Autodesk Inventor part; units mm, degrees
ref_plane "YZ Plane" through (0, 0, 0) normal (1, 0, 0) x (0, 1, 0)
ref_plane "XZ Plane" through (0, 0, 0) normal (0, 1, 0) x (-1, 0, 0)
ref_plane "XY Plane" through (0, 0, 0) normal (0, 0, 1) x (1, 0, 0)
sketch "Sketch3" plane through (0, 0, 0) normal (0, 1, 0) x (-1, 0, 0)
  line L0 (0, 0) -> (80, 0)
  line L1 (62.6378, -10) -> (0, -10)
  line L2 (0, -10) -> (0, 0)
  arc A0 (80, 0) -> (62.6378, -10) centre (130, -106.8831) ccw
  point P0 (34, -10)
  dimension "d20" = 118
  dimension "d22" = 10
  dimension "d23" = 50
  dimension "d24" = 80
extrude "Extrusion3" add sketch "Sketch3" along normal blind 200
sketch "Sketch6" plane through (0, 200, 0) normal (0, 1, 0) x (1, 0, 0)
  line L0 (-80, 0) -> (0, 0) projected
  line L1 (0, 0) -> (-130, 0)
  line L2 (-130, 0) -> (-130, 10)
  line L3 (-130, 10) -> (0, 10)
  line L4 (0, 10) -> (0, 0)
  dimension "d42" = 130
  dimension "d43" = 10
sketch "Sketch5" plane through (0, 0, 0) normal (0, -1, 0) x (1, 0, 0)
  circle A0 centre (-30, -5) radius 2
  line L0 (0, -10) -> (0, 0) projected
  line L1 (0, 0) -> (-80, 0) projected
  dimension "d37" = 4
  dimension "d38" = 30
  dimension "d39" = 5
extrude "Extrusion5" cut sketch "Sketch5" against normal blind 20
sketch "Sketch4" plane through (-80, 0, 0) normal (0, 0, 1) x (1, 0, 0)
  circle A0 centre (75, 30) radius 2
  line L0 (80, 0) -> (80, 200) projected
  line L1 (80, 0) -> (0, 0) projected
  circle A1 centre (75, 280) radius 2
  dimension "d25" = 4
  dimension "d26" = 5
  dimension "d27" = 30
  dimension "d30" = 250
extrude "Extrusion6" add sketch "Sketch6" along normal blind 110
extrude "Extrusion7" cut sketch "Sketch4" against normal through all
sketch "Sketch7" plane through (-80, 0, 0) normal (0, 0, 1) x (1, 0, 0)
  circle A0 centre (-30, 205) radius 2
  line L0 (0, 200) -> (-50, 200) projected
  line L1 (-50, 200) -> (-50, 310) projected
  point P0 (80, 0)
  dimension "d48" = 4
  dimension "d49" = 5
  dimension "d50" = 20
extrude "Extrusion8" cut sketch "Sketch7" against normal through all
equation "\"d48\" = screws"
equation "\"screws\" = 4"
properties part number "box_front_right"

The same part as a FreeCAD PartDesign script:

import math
import FreeCAD as App
import Part
import Sketcher
from FreeCAD import Vector


def add_polygon(sketch, points):
    """Adds a closed chain of lines whose ends are joined by coincident constraints."""
    first, n = sketch.GeometryCount, len(points)
    for a, b in zip(points, points[1:] + points[:1]):
        sketch.addGeometry(Part.LineSegment(App.Vector(*a, 0), App.Vector(*b, 0)), False)
    for i in range(n):
        sketch.addConstraint(Sketcher.Constraint("Coincident", first + i, 2, first + (i + 1) % n, 1))

doc = App.newDocument("Part")
params = doc.addObject("Spreadsheet::Sheet", "Params")
for row, (alias, value) in enumerate([
    ("sketch1_width", "80 mm"),
    ("sketch1_height", "10 mm"),
    ("pad1_length", "200 mm"),
    ("sketch2_diameter", "4 mm"),
    ("pocket1_length", "20 mm"),
    ("sketch3_width", "130 mm"),
    ("sketch3_height", "10 mm"),
    ("pad2_length", "110 mm"),
    ("sketch4_diameter", "4 mm"),
    ("sketch5_diameter", "4 mm"),
], start=1):
    params.set(f"A{row}", alias)
    params.set(f"B{row}", "=" + value)
    params.setAlias(f"B{row}", alias)

body = doc.addObject("PartDesign::Body", "Body")

# Sketch on XZ plane
sketch1 = doc.addObject("Sketcher::SketchObject", "Sketch")
body.addObject(sketch1)
sketch1.AttachmentSupport = (doc.XZ_Plane, [""])
sketch1.MapMode = "FlatFace"
sketch1.addGeometry([
    Part.LineSegment(Vector(-80, 0, 0), Vector(0, 0, 0)),
    Part.LineSegment(Vector(0, 0, 0), Vector(0, -10, 0)),
    Part.LineSegment(Vector(0, -10, 0), Vector(-63, -10, 0)),
    Part.ArcOfCircle(Part.Circle(Vector(-130, -107, 0), Vector(0, 0, 1), 118), math.radians(55.19), math.radians(64.93)),
], False)
sketch1.addConstraint([
    Sketcher.Constraint("Coincident", 0, 2, 1, 1),
    Sketcher.Constraint("Coincident", 1, 2, 2, 1),
    Sketcher.Constraint("Coincident", 2, 2, 3, 1),
    Sketcher.Constraint("Coincident", 3, 2, 0, 1),
    Sketcher.Constraint("Horizontal", 0),
    Sketcher.Constraint("Vertical", 1),
    Sketcher.Constraint("Horizontal", 2),
    Sketcher.Constraint("Coincident", 0, 2, -1, 1),
    Sketcher.Constraint("DistanceX", 0, 1, 0, 2, 80.0),
    Sketcher.Constraint("DistanceY", 1, 2, 1, 1, 10.0),
    Sketcher.Constraint("Radius", 3, 118.0023),
    Sketcher.Constraint("DistanceX", 2, 2, 2, 1, 62.6378),
])
sketch1.setExpression("Constraints[8]", "Params.sketch1_width")
sketch1.setExpression("Constraints[9]", "Params.sketch1_height")
pad1 = doc.addObject("PartDesign::Pad", "Pad")
body.addObject(pad1)
pad1.Profile = sketch1
pad1.setExpression("Length", "Params.pad1_length")
pad1.Reversed = True

# Sketch on XZ plane
sketch2 = doc.addObject("Sketcher::SketchObject", "Sketch001")
body.addObject(sketch2)
sketch2.AttachmentSupport = (doc.XZ_Plane, [""])
sketch2.MapMode = "FlatFace"
sketch2.addGeometry(Part.Circle(Vector(-30, -5, 0), Vector(0, 0, 1), 2), False)
sketch2.addConstraint([
    Sketcher.Constraint("Diameter", 0, 4.0),
    Sketcher.Constraint("DistanceX", 0, 3, -1, 1, 30.0),
    Sketcher.Constraint("DistanceY", 0, 3, -1, 1, 5.0),
])
sketch2.setExpression("Constraints[0]", "Params.sketch2_diameter")
pocket1 = doc.addObject("PartDesign::Pocket", "Pocket")
body.addObject(pocket1)
pocket1.Profile = sketch2
pocket1.setExpression("Length", "Params.pocket1_length")

# Sketch on XZ plane
sketch3 = doc.addObject("Sketcher::SketchObject", "Sketch002")
body.addObject(sketch3)
sketch3.AttachmentSupport = (doc.XZ_Plane, [""])
sketch3.MapMode = "FlatFace"
sketch3.AttachmentOffset = App.Placement(Vector(0, 0, -200), App.Rotation())
add_polygon(sketch3, [(-130, 0), (0, 0), (0, -10), (-130, -10)])  # lines 0-3
sketch3.addConstraint([
    Sketcher.Constraint("Horizontal", 0),
    Sketcher.Constraint("Vertical", 1),
    Sketcher.Constraint("Horizontal", 2),
    Sketcher.Constraint("Vertical", 3),
    Sketcher.Constraint("Coincident", 0, 2, -1, 1),
    Sketcher.Constraint("DistanceX", 0, 1, 0, 2, 130.0),
    Sketcher.Constraint("DistanceY", 1, 2, 1, 1, 10.0),
])
sketch3.setExpression("Constraints[9]", "Params.sketch3_width")
sketch3.setExpression("Constraints[10]", "Params.sketch3_height")
pad2 = doc.addObject("PartDesign::Pad", "Pad001")
body.addObject(pad2)
pad2.Profile = sketch3
pad2.setExpression("Length", "Params.pad2_length")
pad2.Reversed = True

# Sketch on XY plane
sketch4 = doc.addObject("Sketcher::SketchObject", "Sketch003")
body.addObject(sketch4)
sketch4.AttachmentSupport = (doc.XY_Plane, [""])
sketch4.MapMode = "FlatFace"
sketch4.addGeometry([
    Part.Circle(Vector(-5, 30, 0), Vector(0, 0, 1), 2),
    Part.Circle(Vector(-5, 280, 0), Vector(0, 0, 1), 2),
], False)
sketch4.addConstraint([
    Sketcher.Constraint("Equal", 0, 1),
    Sketcher.Constraint("Vertical", 0, 3, 1, 3),
    Sketcher.Constraint("Diameter", 0, 4.0),
    Sketcher.Constraint("DistanceX", 0, 3, -1, 1, 5.0),
    Sketcher.Constraint("DistanceY", -1, 1, 0, 3, 30.0),
    Sketcher.Constraint("DistanceY", 0, 3, 1, 3, 250.0),
])
sketch4.setExpression("Constraints[2]", "Params.sketch4_diameter")
pocket2 = doc.addObject("PartDesign::Pocket", "Pocket001")
body.addObject(pocket2)
pocket2.Profile = sketch4
pocket2.Type = "ThroughAll"

# Sketch on XY plane
sketch5 = doc.addObject("Sketcher::SketchObject", "Sketch004")
body.addObject(sketch5)
sketch5.AttachmentSupport = (doc.XY_Plane, [""])
sketch5.MapMode = "FlatFace"
sketch5.addGeometry(Part.Circle(Vector(-110, 205, 0), Vector(0, 0, 1), 2), False)
sketch5.addConstraint([
    Sketcher.Constraint("Diameter", 0, 4.0),
    Sketcher.Constraint("DistanceX", 0, 3, -1, 1, 110.0),
    Sketcher.Constraint("DistanceY", -1, 1, 0, 3, 205.0),
])
sketch5.setExpression("Constraints[0]", "Params.sketch5_diameter")
pocket3 = doc.addObject("PartDesign::Pocket", "Pocket002")
body.addObject(pocket3)
pocket3.Profile = sketch5
pocket3.Type = "ThroughAll"

doc.recompute()
